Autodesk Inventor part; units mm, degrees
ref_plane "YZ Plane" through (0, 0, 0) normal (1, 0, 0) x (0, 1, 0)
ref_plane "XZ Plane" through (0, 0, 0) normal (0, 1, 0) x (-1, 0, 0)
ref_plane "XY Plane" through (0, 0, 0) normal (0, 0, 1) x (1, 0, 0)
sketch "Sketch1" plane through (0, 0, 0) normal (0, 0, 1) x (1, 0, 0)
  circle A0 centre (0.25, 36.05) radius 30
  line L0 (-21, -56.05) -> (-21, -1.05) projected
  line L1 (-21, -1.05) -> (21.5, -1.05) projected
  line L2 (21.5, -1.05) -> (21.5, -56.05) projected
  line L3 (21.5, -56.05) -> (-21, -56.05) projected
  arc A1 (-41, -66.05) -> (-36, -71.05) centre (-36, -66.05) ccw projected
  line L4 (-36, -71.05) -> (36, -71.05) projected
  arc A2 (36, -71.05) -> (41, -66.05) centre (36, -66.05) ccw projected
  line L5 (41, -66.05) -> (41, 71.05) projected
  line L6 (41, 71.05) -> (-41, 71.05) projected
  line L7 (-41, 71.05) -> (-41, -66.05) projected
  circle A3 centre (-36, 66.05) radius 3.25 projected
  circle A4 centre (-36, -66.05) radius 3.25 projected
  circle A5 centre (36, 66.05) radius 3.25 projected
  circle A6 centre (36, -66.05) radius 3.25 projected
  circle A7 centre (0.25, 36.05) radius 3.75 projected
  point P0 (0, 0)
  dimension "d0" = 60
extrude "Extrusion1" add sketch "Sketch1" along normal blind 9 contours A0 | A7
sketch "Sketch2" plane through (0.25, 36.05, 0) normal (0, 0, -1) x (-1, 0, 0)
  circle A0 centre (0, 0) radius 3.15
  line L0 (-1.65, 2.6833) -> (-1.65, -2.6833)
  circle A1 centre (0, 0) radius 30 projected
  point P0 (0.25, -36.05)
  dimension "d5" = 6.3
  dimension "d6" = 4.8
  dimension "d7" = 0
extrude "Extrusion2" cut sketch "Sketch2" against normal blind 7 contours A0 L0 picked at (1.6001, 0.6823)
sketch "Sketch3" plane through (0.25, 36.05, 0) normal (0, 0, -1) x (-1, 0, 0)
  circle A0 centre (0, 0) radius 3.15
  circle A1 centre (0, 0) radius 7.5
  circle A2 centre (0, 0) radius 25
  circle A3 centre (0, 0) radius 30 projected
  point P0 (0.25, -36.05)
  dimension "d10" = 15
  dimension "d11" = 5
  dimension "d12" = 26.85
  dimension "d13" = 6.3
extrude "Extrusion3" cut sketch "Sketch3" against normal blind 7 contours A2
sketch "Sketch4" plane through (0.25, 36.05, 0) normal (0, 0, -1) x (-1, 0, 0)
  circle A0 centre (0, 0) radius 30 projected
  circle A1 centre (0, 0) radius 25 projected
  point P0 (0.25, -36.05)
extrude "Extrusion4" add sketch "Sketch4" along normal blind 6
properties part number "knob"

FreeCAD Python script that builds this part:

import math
import FreeCAD as App
import Part
import Sketcher
Q = App.Units.Quantity

doc = App.newDocument("Part")
body = doc.addObject("PartDesign::Body", "Body")

sketch1 = body.newObject("Sketcher::SketchObject", "Sketch")
sketch1.AttachmentSupport = (doc.getObject("XY_Plane"), [""])
sketch1.MapMode = "FlatFace"
sketch1.addGeometry(Part.Circle(App.Vector(0, 36, 0), App.Vector(0, 0, 1), 30), False)
sketch1.addConstraint([
    Sketcher.Constraint("Diameter", 0, Q("60 mm")),
    Sketcher.Constraint("DistanceX", -1, 1, 0, 3, Q("0.25 mm")),
    Sketcher.Constraint("DistanceY", -1, 1, 0, 3, Q("36.05 mm")),
])
pad1 = body.newObject("PartDesign::Pad", "Pad")
pad1.Profile = sketch1
pad1.Length = 9

sketch2 = body.newObject("Sketcher::SketchObject", "Sketch001")
sketch2.AttachmentSupport = (doc.getObject("XY_Plane"), [""])
sketch2.MapMode = "FlatFace"
sketch2.addGeometry([
    Part.ArcOfCircle(Part.Circle(App.Vector(0.2, 36, 0), App.Vector(0, 0, 1), 3.1), math.radians(58), math.radians(302)),
    Part.LineSegment(App.Vector(1.9, 33.4, 0), App.Vector(1.9, 38.7, 0)),
], False)
sketch2.addConstraint([
    Sketcher.Constraint("Coincident", 0, 1, 1, 2),
    Sketcher.Constraint("Coincident", 1, 1, 0, 2),
    Sketcher.Constraint("Vertical", 1),
    Sketcher.Constraint("Radius", 0, Q("3.15 mm")),
    Sketcher.Constraint("DistanceX", -1, 1, 0, 1, Q("1.9 mm")),
    Sketcher.Constraint("DistanceX", -1, 1, 0, 3, Q("0.25 mm")),
    Sketcher.Constraint("DistanceY", -1, 1, 0, 3, Q("36.05 mm")),
])
pocket1 = body.newObject("PartDesign::Pocket", "Pocket")
pocket1.Profile = sketch2
pocket1.Length = 7
pocket1.Reversed = True

sketch3 = body.newObject("Sketcher::SketchObject", "Sketch002")
sketch3.AttachmentSupport = (doc.getObject("XY_Plane"), [""])
sketch3.MapMode = "FlatFace"
sketch3.addGeometry([
    Part.Circle(App.Vector(0, 36, 0), App.Vector(0, 0, 1), 25),
    Part.Circle(App.Vector(0, 36, 0), App.Vector(0, 0, 1), 8),
], False)
sketch3.addConstraint([
    Sketcher.Constraint("Coincident", 1, 3, 0, 3),
    Sketcher.Constraint("Diameter", 1, Q("15 mm")),
    Sketcher.Constraint("Diameter", 0, Q("50 mm")),
    Sketcher.Constraint("DistanceX", -1, 1, 0, 3, Q("0.25 mm")),
    Sketcher.Constraint("DistanceY", -1, 1, 0, 3, Q("36.05 mm")),
])
pocket2 = body.newObject("PartDesign::Pocket", "Pocket001")
pocket2.Profile = sketch3
pocket2.Length = 7
pocket2.Reversed = True

sketch4 = body.newObject("Sketcher::SketchObject", "Sketch003")
sketch4.AttachmentSupport = (doc.getObject("XY_Plane"), [""])
sketch4.MapMode = "FlatFace"
sketch4.addGeometry([
    Part.Circle(App.Vector(0, 36, 0), App.Vector(0, 0, 1), 30),
    Part.Circle(App.Vector(0, 36, 0), App.Vector(0, 0, 1), 25),
], False)
sketch4.addConstraint([
    Sketcher.Constraint("Coincident", 1, 3, 0, 3),
    Sketcher.Constraint("Diameter", 0, Q("60 mm")),
    Sketcher.Constraint("Diameter", 1, Q("50 mm")),
    Sketcher.Constraint("DistanceX", -1, 1, 0, 3, Q("0.25 mm")),
    Sketcher.Constraint("DistanceY", -1, 1, 0, 3, Q("36.05 mm")),
])
pad2 = body.newObject("PartDesign::Pad", "Pad001")
pad2.Profile = sketch4
pad2.Length = 6
pad2.Reversed = True

doc.recompute()
